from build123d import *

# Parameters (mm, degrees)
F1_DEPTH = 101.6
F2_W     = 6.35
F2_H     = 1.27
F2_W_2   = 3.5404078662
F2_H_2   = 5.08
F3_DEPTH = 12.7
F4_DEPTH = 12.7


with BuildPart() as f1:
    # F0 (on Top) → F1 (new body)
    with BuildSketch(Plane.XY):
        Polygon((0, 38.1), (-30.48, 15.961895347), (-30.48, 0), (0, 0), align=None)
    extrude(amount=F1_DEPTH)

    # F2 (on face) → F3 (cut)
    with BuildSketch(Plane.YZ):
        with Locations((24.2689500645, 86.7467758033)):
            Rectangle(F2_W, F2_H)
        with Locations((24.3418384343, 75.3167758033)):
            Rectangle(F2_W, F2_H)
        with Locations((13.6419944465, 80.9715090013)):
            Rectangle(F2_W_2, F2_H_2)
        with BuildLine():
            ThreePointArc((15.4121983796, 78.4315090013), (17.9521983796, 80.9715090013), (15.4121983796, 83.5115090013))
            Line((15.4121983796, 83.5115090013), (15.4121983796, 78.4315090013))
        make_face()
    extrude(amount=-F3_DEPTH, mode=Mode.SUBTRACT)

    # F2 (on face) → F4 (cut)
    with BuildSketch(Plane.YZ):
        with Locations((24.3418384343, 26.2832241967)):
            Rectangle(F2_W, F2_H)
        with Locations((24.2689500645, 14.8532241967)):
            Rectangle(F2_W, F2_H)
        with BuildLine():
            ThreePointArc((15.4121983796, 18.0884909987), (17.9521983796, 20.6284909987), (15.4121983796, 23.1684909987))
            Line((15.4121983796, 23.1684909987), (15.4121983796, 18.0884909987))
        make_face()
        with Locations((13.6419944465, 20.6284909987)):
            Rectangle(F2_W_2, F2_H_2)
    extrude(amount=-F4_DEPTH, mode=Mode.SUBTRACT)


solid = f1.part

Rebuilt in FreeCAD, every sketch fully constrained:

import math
import FreeCAD as App
import Part
import Sketcher
from FreeCAD import Vector
Q = App.Units.Quantity

doc = App.newDocument("Part")
body = doc.addObject("PartDesign::Body", "Body")

sketch1 = body.newObject("Sketcher::SketchObject", "Sketch")
sketch1.AttachmentSupport = (doc.getObject("XY_Plane"), [""])
sketch1.MapMode = "FlatFace"
sketch1.addGeometry([
    Part.LineSegment(Vector(0, 38, 0), Vector(-30, 16, 0)),
    Part.LineSegment(Vector(-30, 16, 0), Vector(-30, 0, 0)),
    Part.LineSegment(Vector(-30, 0, 0), Vector(0, 0, 0)),
    Part.LineSegment(Vector(0, 0, 0), Vector(0, 38, 0)),
], False)
sketch1.addConstraint([
    Sketcher.Constraint("Coincident", 0, 2, 1, 1),
    Sketcher.Constraint("Coincident", 1, 2, 2, 1),
    Sketcher.Constraint("Coincident", 2, 2, 3, 1),
    Sketcher.Constraint("Coincident", 3, 2, 0, 1),
    Sketcher.Constraint("Vertical", 1),
    Sketcher.Constraint("Horizontal", 2),
    Sketcher.Constraint("Vertical", 3),
    Sketcher.Constraint("Coincident", 2, 2, -1, 1),
    Sketcher.Constraint("DistanceX", 2, 1, 2, 2, Q("1.2 in")),
    Sketcher.Constraint("DistanceY", 3, 1, 3, 2, Q("1.5 in")),
    Sketcher.Constraint("Distance", 0, 37.67129),
])
pad1 = body.newObject("PartDesign::Pad", "Pad")
pad1.Profile = sketch1
pad1.Length = Q("4 in")

sketch2 = body.newObject("Sketcher::SketchObject", "Sketch001")
sketch2.AttachmentSupport = (doc.getObject("YZ_Plane"), [""])
sketch2.MapMode = "FlatFace"
sketch2.addGeometry([
    Part.LineSegment(Vector(21.1, 87.4, 0), Vector(21.1, 86.1, 0)),
    Part.LineSegment(Vector(21.1, 86.1, 0), Vector(27.4, 86.1, 0)),
    Part.LineSegment(Vector(27.4, 86.1, 0), Vector(27.4, 87.4, 0)),
    Part.LineSegment(Vector(27.4, 87.4, 0), Vector(21.1, 87.4, 0)),
    Part.LineSegment(Vector(21.2, 76, 0), Vector(21.2, 74.7, 0)),
    Part.LineSegment(Vector(21.2, 74.7, 0), Vector(27.5, 74.7, 0)),
    Part.LineSegment(Vector(27.5, 74.7, 0), Vector(27.5, 76, 0)),
    Part.LineSegment(Vector(27.5, 76, 0), Vector(21.2, 76, 0)),
    Part.LineSegment(Vector(11.9, 83.5, 0), Vector(11.9, 78.4, 0)),
    Part.LineSegment(Vector(11.9, 78.4, 0), Vector(15.4, 78.4, 0)),
    Part.ArcOfCircle(Part.Circle(Vector(15.4, 81, 0), Vector(0, 0, 1), 2.5), math.radians(-90), math.radians(90)),
    Part.LineSegment(Vector(15.4, 83.5, 0), Vector(11.9, 83.5, 0)),
], False)
sketch2.addConstraint([
    Sketcher.Constraint("Coincident", 0, 2, 1, 1),
    Sketcher.Constraint("Coincident", 1, 2, 2, 1),
    Sketcher.Constraint("Coincident", 2, 2, 3, 1),
    Sketcher.Constraint("Coincident", 3, 2, 0, 1),
    Sketcher.Constraint("Coincident", 4, 2, 5, 1),
    Sketcher.Constraint("Coincident", 5, 2, 6, 1),
    Sketcher.Constraint("Coincident", 6, 2, 7, 1),
    Sketcher.Constraint("Coincident", 7, 2, 4, 1),
    Sketcher.Constraint("Coincident", 8, 2, 9, 1),
    Sketcher.Constraint("Tangent", 9, 2, 10, 1),
    Sketcher.Constraint("Tangent", 10, 2, 11, 1),
    Sketcher.Constraint("Coincident", 11, 2, 8, 1),
    Sketcher.Constraint("Vertical", 0),
    Sketcher.Constraint("Horizontal", 1),
    Sketcher.Constraint("Vertical", 2),
    Sketcher.Constraint("Horizontal", 3),
    Sketcher.Constraint("Vertical", 4),
    Sketcher.Constraint("Horizontal", 5),
    Sketcher.Constraint("Vertical", 6),
    Sketcher.Constraint("Horizontal", 7),
    Sketcher.Constraint("Vertical", 8),
    Sketcher.Constraint("Horizontal", 9),
    Sketcher.Constraint("Horizontal", 11),
    Sketcher.Constraint("Equal", 3, 5),
    Sketcher.Constraint("Equal", 2, 4),
    Sketcher.Constraint("Radius", 10, Q("0.1 in")),
    Sketcher.Constraint("DistanceX", 1, 1, 1, 2, Q("0.25 in")),
    Sketcher.Constraint("DistanceY", 0, 2, 0, 1, Q("0.05 in")),
    Sketcher.Constraint("DistanceY", 4, 2, 3, 2, Q("0.5 in")),
    Sketcher.Constraint("DistanceX", -1, 1, 10, 3, 15.412198),
    Sketcher.Constraint("DistanceX", 9, 1, 9, 2, 3.540408),
    Sketcher.Constraint("DistanceY", -1, 1, 10, 3, 80.971509),
    Sketcher.Constraint("DistanceX", -1, 1, 0, 2, 21.09395),
    Sketcher.Constraint("DistanceX", -1, 1, 4, 2, 21.166838),
    Sketcher.Constraint("DistanceY", -1, 1, 0, 2, 86.111776),
])
pocket1 = body.newObject("PartDesign::Pocket", "Pocket")
pocket1.Profile = sketch2
pocket1.Length = Q("0.5 in")

sketch3 = body.newObject("Sketcher::SketchObject", "Sketch002")
sketch3.AttachmentSupport = (doc.getObject("YZ_Plane"), [""])
sketch3.MapMode = "FlatFace"
sketch3.addGeometry([
    Part.LineSegment(Vector(21.2, 26.9, 0), Vector(21.2, 25.6, 0)),
    Part.LineSegment(Vector(21.2, 25.6, 0), Vector(27.5, 25.6, 0)),
    Part.LineSegment(Vector(27.5, 25.6, 0), Vector(27.5, 26.9, 0)),
    Part.LineSegment(Vector(27.5, 26.9, 0), Vector(21.2, 26.9, 0)),
    Part.LineSegment(Vector(21.1, 15.5, 0), Vector(21.1, 14.2, 0)),
    Part.LineSegment(Vector(21.1, 14.2, 0), Vector(27.4, 14.2, 0)),
    Part.LineSegment(Vector(27.4, 14.2, 0), Vector(27.4, 15.5, 0)),
    Part.LineSegment(Vector(27.4, 15.5, 0), Vector(21.1, 15.5, 0)),
    Part.ArcOfCircle(Part.Circle(Vector(15.4, 20.6, 0), Vector(0, 0, 1), 2.5), math.radians(-90), math.radians(90)),
    Part.LineSegment(Vector(15.4, 23.2, 0), Vector(11.9, 23.2, 0)),
    Part.LineSegment(Vector(11.9, 23.2, 0), Vector(11.9, 18.1, 0)),
    Part.LineSegment(Vector(11.9, 18.1, 0), Vector(15.4, 18.1, 0)),
], False)
sketch3.addConstraint([
    Sketcher.Constraint("Coincident", 0, 2, 1, 1),
    Sketcher.Constraint("Coincident", 1, 2, 2, 1),
    Sketcher.Constraint("Coincident", 2, 2, 3, 1),
    Sketcher.Constraint("Coincident", 3, 2, 0, 1),
    Sketcher.Constraint("Coincident", 4, 2, 5, 1),
    Sketcher.Constraint("Coincident", 5, 2, 6, 1),
    Sketcher.Constraint("Coincident", 6, 2, 7, 1),
    Sketcher.Constraint("Coincident", 7, 2, 4, 1),
    Sketcher.Constraint("Tangent", 8, 2, 9, 1),
    Sketcher.Constraint("Coincident", 9, 2, 10, 1),
    Sketcher.Constraint("Coincident", 10, 2, 11, 1),
    Sketcher.Constraint("Tangent", 11, 2, 8, 1),
    Sketcher.Constraint("Vertical", 0),
    Sketcher.Constraint("Horizontal", 1),
    Sketcher.Constraint("Vertical", 2),
    Sketcher.Constraint("Horizontal", 3),
    Sketcher.Constraint("Vertical", 4),
    Sketcher.Constraint("Horizontal", 5),
    Sketcher.Constraint("Vertical", 6),
    Sketcher.Constraint("Horizontal", 7),
    Sketcher.Constraint("Horizontal", 9),
    Sketcher.Constraint("Vertical", 10),
    Sketcher.Constraint("Horizontal", 11),
    Sketcher.Constraint("Equal", 3, 5),
    Sketcher.Constraint("Equal", 2, 4),
    Sketcher.Constraint("Radius", 8, Q("0.1 in")),
    Sketcher.Constraint("DistanceX", 1, 1, 1, 2, Q("0.25 in")),
    Sketcher.Constraint("DistanceY", 0, 2, 0, 1, Q("0.05 in")),
    Sketcher.Constraint("DistanceY", 4, 2, 3, 2, Q("0.5 in")),
    Sketcher.Constraint("DistanceX", -1, 1, 8, 3, 15.412198),
    Sketcher.Constraint("DistanceX", 9, 2, 9, 1, 3.540408),
    Sketcher.Constraint("DistanceY", -1, 1, 8, 3, 20.628491),
    Sketcher.Constraint("DistanceX", -1, 1, 0, 2, 21.166838),
    Sketcher.Constraint("DistanceX", -1, 1, 4, 2, 21.09395),
    Sketcher.Constraint("DistanceY", -1, 1, 0, 2, 25.648224),
])
pocket2 = body.newObject("PartDesign::Pocket", "Pocket001")
pocket2.Profile = sketch3
pocket2.Length = Q("0.5 in")

doc.recompute()
